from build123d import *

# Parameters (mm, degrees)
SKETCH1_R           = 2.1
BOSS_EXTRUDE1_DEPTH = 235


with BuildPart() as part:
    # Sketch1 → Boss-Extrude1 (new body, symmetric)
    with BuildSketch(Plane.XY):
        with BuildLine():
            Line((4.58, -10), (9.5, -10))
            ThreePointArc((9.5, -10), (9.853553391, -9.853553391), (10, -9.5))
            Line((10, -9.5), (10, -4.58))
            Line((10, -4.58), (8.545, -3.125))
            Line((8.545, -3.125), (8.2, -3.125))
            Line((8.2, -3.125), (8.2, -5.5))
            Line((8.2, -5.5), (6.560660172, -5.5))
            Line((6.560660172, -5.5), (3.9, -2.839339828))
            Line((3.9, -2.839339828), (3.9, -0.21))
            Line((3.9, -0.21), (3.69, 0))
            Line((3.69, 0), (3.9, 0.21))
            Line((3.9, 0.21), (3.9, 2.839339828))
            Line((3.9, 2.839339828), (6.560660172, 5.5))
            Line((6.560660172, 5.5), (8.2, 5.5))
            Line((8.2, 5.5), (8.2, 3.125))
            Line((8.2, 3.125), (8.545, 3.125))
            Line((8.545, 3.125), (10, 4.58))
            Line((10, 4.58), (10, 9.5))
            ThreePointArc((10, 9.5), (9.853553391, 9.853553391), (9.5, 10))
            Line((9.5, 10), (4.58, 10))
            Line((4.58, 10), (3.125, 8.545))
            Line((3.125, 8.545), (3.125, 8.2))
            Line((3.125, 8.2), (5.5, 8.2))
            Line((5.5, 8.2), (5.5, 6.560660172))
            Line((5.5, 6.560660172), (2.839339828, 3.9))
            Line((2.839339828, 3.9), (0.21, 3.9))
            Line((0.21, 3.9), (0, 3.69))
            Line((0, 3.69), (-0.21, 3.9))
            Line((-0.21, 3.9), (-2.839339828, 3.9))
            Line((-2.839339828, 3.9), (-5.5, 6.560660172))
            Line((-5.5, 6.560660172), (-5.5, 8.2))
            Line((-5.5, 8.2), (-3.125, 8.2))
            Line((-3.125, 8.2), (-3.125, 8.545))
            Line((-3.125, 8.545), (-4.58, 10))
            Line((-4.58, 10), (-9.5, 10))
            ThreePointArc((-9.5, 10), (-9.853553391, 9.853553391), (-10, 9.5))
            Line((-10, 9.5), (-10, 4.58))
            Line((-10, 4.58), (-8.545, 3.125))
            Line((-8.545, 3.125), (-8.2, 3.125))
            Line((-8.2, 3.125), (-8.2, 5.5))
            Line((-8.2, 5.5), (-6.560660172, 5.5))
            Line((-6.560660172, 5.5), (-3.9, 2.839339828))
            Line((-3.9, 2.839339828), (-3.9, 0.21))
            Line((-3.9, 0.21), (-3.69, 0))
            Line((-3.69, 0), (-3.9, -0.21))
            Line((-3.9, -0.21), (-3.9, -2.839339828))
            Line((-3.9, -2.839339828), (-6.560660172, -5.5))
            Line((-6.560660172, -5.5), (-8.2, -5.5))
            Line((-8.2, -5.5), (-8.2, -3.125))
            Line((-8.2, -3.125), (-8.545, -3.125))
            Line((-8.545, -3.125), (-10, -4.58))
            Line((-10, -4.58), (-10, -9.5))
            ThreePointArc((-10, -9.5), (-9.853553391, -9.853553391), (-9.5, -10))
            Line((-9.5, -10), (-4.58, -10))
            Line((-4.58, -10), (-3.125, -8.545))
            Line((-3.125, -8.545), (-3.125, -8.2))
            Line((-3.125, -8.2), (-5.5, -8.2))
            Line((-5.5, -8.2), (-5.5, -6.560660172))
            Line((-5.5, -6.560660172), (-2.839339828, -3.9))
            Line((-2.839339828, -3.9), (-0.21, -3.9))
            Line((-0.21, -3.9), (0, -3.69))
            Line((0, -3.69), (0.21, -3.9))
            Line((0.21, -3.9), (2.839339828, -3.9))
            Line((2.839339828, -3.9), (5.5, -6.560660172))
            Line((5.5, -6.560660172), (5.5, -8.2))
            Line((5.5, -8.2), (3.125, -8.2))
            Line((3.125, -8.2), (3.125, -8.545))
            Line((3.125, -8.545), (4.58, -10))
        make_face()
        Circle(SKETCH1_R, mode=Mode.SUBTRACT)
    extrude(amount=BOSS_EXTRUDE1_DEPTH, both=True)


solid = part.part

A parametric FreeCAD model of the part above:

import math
import FreeCAD as App
import Part
import Sketcher

doc = App.newDocument("Part")
body = doc.addObject("PartDesign::Body", "Body")

sketch1 = body.newObject("Sketcher::SketchObject", "Sketch")
sketch1.AttachmentSupport = (doc.getObject("XY_Plane"), [""])
sketch1.MapMode = "FlatFace"
sketch1.addGeometry(Part.LineSegment(App.Vector(4.58, -10, 0), App.Vector(9.5, -10, 0)), False)
sketch1.addGeometry(Part.ArcOfCircle(Part.Circle(App.Vector(9.5, -9.5, 0), App.Vector(0, 0, 1), 0.5), math.radians(-90), math.radians(0)), False)
sketch1.addGeometry(Part.LineSegment(App.Vector(10, -9.5, 0), App.Vector(10, -4.58, 0)), False)
sketch1.addGeometry(Part.LineSegment(App.Vector(10, -4.58, 0), App.Vector(8.54, -3.12, 0)), False)
sketch1.addGeometry(Part.LineSegment(App.Vector(8.54, -3.12, 0), App.Vector(8.2, -3.12, 0)), False)
sketch1.addGeometry(Part.LineSegment(App.Vector(8.2, -3.12, 0), App.Vector(8.2, -5.5, 0)), False)
sketch1.addGeometry(Part.LineSegment(App.Vector(8.2, -5.5, 0), App.Vector(6.56, -5.5, 0)), False)
sketch1.addGeometry(Part.LineSegment(App.Vector(6.56, -5.5, 0), App.Vector(3.9, -2.84, 0)), False)
sketch1.addGeometry(Part.LineSegment(App.Vector(3.9, -2.84, 0), App.Vector(3.9, -0.21, 0)), False)
sketch1.addGeometry(Part.LineSegment(App.Vector(3.9, -0.21, 0), App.Vector(3.69, 0, 0)), False)
sketch1.addGeometry(Part.LineSegment(App.Vector(3.69, 0, 0), App.Vector(3.9, 0.21, 0)), False)
sketch1.addGeometry(Part.LineSegment(App.Vector(3.9, 0.21, 0), App.Vector(3.9, 2.84, 0)), False)
sketch1.addGeometry(Part.LineSegment(App.Vector(3.9, 2.84, 0), App.Vector(6.56, 5.5, 0)), False)
sketch1.addGeometry(Part.LineSegment(App.Vector(6.56, 5.5, 0), App.Vector(8.2, 5.5, 0)), False)
sketch1.addGeometry(Part.LineSegment(App.Vector(8.2, 5.5, 0), App.Vector(8.2, 3.12, 0)), False)
sketch1.addGeometry(Part.LineSegment(App.Vector(8.2, 3.12, 0), App.Vector(8.54, 3.12, 0)), False)
sketch1.addGeometry(Part.LineSegment(App.Vector(8.54, 3.12, 0), App.Vector(10, 4.58, 0)), False)
sketch1.addGeometry(Part.LineSegment(App.Vector(10, 4.58, 0), App.Vector(10, 9.5, 0)), False)
sketch1.addGeometry(Part.ArcOfCircle(Part.Circle(App.Vector(9.5, 9.5, 0), App.Vector(0, 0, 1), 0.5), math.radians(0), math.radians(90)), False)
sketch1.addGeometry(Part.LineSegment(App.Vector(9.5, 10, 0), App.Vector(4.58, 10, 0)), False)
sketch1.addGeometry(Part.LineSegment(App.Vector(4.58, 10, 0), App.Vector(3.12, 8.54, 0)), False)
sketch1.addGeometry(Part.LineSegment(App.Vector(3.12, 8.54, 0), App.Vector(3.12, 8.2, 0)), False)
sketch1.addGeometry(Part.LineSegment(App.Vector(3.12, 8.2, 0), App.Vector(5.5, 8.2, 0)), False)
sketch1.addGeometry(Part.LineSegment(App.Vector(5.5, 8.2, 0), App.Vector(5.5, 6.56, 0)), False)
sketch1.addGeometry(Part.LineSegment(App.Vector(5.5, 6.56, 0), App.Vector(2.84, 3.9, 0)), False)
sketch1.addGeometry(Part.LineSegment(App.Vector(2.84, 3.9, 0), App.Vector(0.21, 3.9, 0)), False)
sketch1.addGeometry(Part.LineSegment(App.Vector(0.21, 3.9, 0), App.Vector(0, 3.69, 0)), False)
sketch1.addGeometry(Part.LineSegment(App.Vector(0, 3.69, 0), App.Vector(-0.21, 3.9, 0)), False)
sketch1.addGeometry(Part.LineSegment(App.Vector(-0.21, 3.9, 0), App.Vector(-2.84, 3.9, 0)), False)
sketch1.addGeometry(Part.LineSegment(App.Vector(-2.84, 3.9, 0), App.Vector(-5.5, 6.56, 0)), False)
sketch1.addGeometry(Part.LineSegment(App.Vector(-5.5, 6.56, 0), App.Vector(-5.5, 8.2, 0)), False)
sketch1.addGeometry(Part.LineSegment(App.Vector(-5.5, 8.2, 0), App.Vector(-3.12, 8.2, 0)), False)
sketch1.addGeometry(Part.LineSegment(App.Vector(-3.12, 8.2, 0), App.Vector(-3.12, 8.54, 0)), False)
sketch1.addGeometry(Part.LineSegment(App.Vector(-3.12, 8.54, 0), App.Vector(-4.58, 10, 0)), False)
sketch1.addGeometry(Part.LineSegment(App.Vector(-4.58, 10, 0), App.Vector(-9.5, 10, 0)), False)
sketch1.addGeometry(Part.ArcOfCircle(Part.Circle(App.Vector(-9.5, 9.5, 0), App.Vector(0, 0, 1), 0.5), math.radians(90), math.radians(180)), False)
sketch1.addGeometry(Part.LineSegment(App.Vector(-10, 9.5, 0), App.Vector(-10, 4.58, 0)), False)
sketch1.addGeometry(Part.LineSegment(App.Vector(-10, 4.58, 0), App.Vector(-8.54, 3.12, 0)), False)
sketch1.addGeometry(Part.LineSegment(App.Vector(-8.54, 3.12, 0), App.Vector(-8.2, 3.12, 0)), False)
sketch1.addGeometry(Part.LineSegment(App.Vector(-8.2, 3.12, 0), App.Vector(-8.2, 5.5, 0)), False)
sketch1.addGeometry(Part.LineSegment(App.Vector(-8.2, 5.5, 0), App.Vector(-6.56, 5.5, 0)), False)
sketch1.addGeometry(Part.LineSegment(App.Vector(-6.56, 5.5, 0), App.Vector(-3.9, 2.84, 0)), False)
sketch1.addGeometry(Part.LineSegment(App.Vector(-3.9, 2.84, 0), App.Vector(-3.9, 0.21, 0)), False)
sketch1.addGeometry(Part.LineSegment(App.Vector(-3.9, 0.21, 0), App.Vector(-3.69, 0, 0)), False)
sketch1.addGeometry(Part.LineSegment(App.Vector(-3.69, 0, 0), App.Vector(-3.9, -0.21, 0)), False)
sketch1.addGeometry(Part.LineSegment(App.Vector(-3.9, -0.21, 0), App.Vector(-3.9, -2.84, 0)), False)
sketch1.addGeometry(Part.LineSegment(App.Vector(-3.9, -2.84, 0), App.Vector(-6.56, -5.5, 0)), False)
sketch1.addGeometry(Part.LineSegment(App.Vector(-6.56, -5.5, 0), App.Vector(-8.2, -5.5, 0)), False)
sketch1.addGeometry(Part.LineSegment(App.Vector(-8.2, -5.5, 0), App.Vector(-8.2, -3.12, 0)), False)
sketch1.addGeometry(Part.LineSegment(App.Vector(-8.2, -3.12, 0), App.Vector(-8.54, -3.12, 0)), False)
sketch1.addGeometry(Part.LineSegment(App.Vector(-8.54, -3.12, 0), App.Vector(-10, -4.58, 0)), False)
sketch1.addGeometry(Part.LineSegment(App.Vector(-10, -4.58, 0), App.Vector(-10, -9.5, 0)), False)
sketch1.addGeometry(Part.ArcOfCircle(Part.Circle(App.Vector(-9.5, -9.5, 0), App.Vector(0, 0, 1), 0.5), math.radians(180), math.radians(270)), False)
sketch1.addGeometry(Part.LineSegment(App.Vector(-9.5, -10, 0), App.Vector(-4.58, -10, 0)), False)
sketch1.addGeometry(Part.LineSegment(App.Vector(-4.58, -10, 0), App.Vector(-3.12, -8.54, 0)), False)
sketch1.addGeometry(Part.LineSegment(App.Vector(-3.12, -8.54, 0), App.Vector(-3.12, -8.2, 0)), False)
sketch1.addGeometry(Part.LineSegment(App.Vector(-3.12, -8.2, 0), App.Vector(-5.5, -8.2, 0)), False)
sketch1.addGeometry(Part.LineSegment(App.Vector(-5.5, -8.2, 0), App.Vector(-5.5, -6.56, 0)), False)
sketch1.addGeometry(Part.LineSegment(App.Vector(-5.5, -6.56, 0), App.Vector(-2.84, -3.9, 0)), False)
sketch1.addGeometry(Part.LineSegment(App.Vector(-2.84, -3.9, 0), App.Vector(-0.21, -3.9, 0)), False)
sketch1.addGeometry(Part.LineSegment(App.Vector(-0.21, -3.9, 0), App.Vector(0, -3.69, 0)), False)
sketch1.addGeometry(Part.LineSegment(App.Vector(0, -3.69, 0), App.Vector(0.21, -3.9, 0)), False)
sketch1.addGeometry(Part.LineSegment(App.Vector(0.21, -3.9, 0), App.Vector(2.84, -3.9, 0)), False)
sketch1.addGeometry(Part.LineSegment(App.Vector(2.84, -3.9, 0), App.Vector(5.5, -6.56, 0)), False)
sketch1.addGeometry(Part.LineSegment(App.Vector(5.5, -6.56, 0), App.Vector(5.5, -8.2, 0)), False)
sketch1.addGeometry(Part.LineSegment(App.Vector(5.5, -8.2, 0), App.Vector(3.12, -8.2, 0)), False)
sketch1.addGeometry(Part.LineSegment(App.Vector(3.12, -8.2, 0), App.Vector(3.12, -8.54, 0)), False)
sketch1.addGeometry(Part.LineSegment(App.Vector(3.12, -8.54, 0), App.Vector(4.58, -10, 0)), False)
sketch1.addGeometry(Part.Circle(App.Vector(0, 0, 0), App.Vector(0, 0, 1), 2.1), False)
sketch1.addConstraint(Sketcher.Constraint("Tangent", 0, 2, 1, 1))
sketch1.addConstraint(Sketcher.Constraint("Tangent", 1, 2, 2, 1))
sketch1.addConstraint(Sketcher.Constraint("Coincident", 2, 2, 3, 1))
sketch1.addConstraint(Sketcher.Constraint("Coincident", 3, 2, 4, 1))
sketch1.addConstraint(Sketcher.Constraint("Coincident", 4, 2, 5, 1))
sketch1.addConstraint(Sketcher.Constraint("Coincident", 5, 2, 6, 1))
sketch1.addConstraint(Sketcher.Constraint("Coincident", 6, 2, 7, 1))
sketch1.addConstraint(Sketcher.Constraint("Coincident", 7, 2, 8, 1))
sketch1.addConstraint(Sketcher.Constraint("Coincident", 8, 2, 9, 1))
sketch1.addConstraint(Sketcher.Constraint("Coincident", 9, 2, 10, 1))
sketch1.addConstraint(Sketcher.Constraint("Coincident", 10, 2, 11, 1))
sketch1.addConstraint(Sketcher.Constraint("Coincident", 11, 2, 12, 1))
sketch1.addConstraint(Sketcher.Constraint("Coincident", 12, 2, 13, 1))
sketch1.addConstraint(Sketcher.Constraint("Coincident", 13, 2, 14, 1))
sketch1.addConstraint(Sketcher.Constraint("Coincident", 14, 2, 15, 1))
sketch1.addConstraint(Sketcher.Constraint("Coincident", 15, 2, 16, 1))
sketch1.addConstraint(Sketcher.Constraint("Coincident", 16, 2, 17, 1))
sketch1.addConstraint(Sketcher.Constraint("Tangent", 17, 2, 18, 1))
sketch1.addConstraint(Sketcher.Constraint("Tangent", 18, 2, 19, 1))
sketch1.addConstraint(Sketcher.Constraint("Coincident", 19, 2, 20, 1))
sketch1.addConstraint(Sketcher.Constraint("Coincident", 20, 2, 21, 1))
sketch1.addConstraint(Sketcher.Constraint("Coincident", 21, 2, 22, 1))
sketch1.addConstraint(Sketcher.Constraint("Coincident", 22, 2, 23, 1))
sketch1.addConstraint(Sketcher.Constraint("Coincident", 23, 2, 24, 1))
sketch1.addConstraint(Sketcher.Constraint("Coincident", 24, 2, 25, 1))
sketch1.addConstraint(Sketcher.Constraint("Coincident", 25, 2, 26, 1))
sketch1.addConstraint(Sketcher.Constraint("Coincident", 26, 2, 27, 1))
sketch1.addConstraint(Sketcher.Constraint("Coincident", 27, 2, 28, 1))
sketch1.addConstraint(Sketcher.Constraint("Coincident", 28, 2, 29, 1))
sketch1.addConstraint(Sketcher.Constraint("Coincident", 29, 2, 30, 1))
sketch1.addConstraint(Sketcher.Constraint("Coincident", 30, 2, 31, 1))
sketch1.addConstraint(Sketcher.Constraint("Coincident", 31, 2, 32, 1))
sketch1.addConstraint(Sketcher.Constraint("Coincident", 32, 2, 33, 1))
sketch1.addConstraint(Sketcher.Constraint("Coincident", 33, 2, 34, 1))
sketch1.addConstraint(Sketcher.Constraint("Tangent", 34, 2, 35, 1))
sketch1.addConstraint(Sketcher.Constraint("Tangent", 35, 2, 36, 1))
sketch1.addConstraint(Sketcher.Constraint("Coincident", 36, 2, 37, 1))
sketch1.addConstraint(Sketcher.Constraint("Coincident", 37, 2, 38, 1))
sketch1.addConstraint(Sketcher.Constraint("Coincident", 38, 2, 39, 1))
sketch1.addConstraint(Sketcher.Constraint("Coincident", 39, 2, 40, 1))
sketch1.addConstraint(Sketcher.Constraint("Coincident", 40, 2, 41, 1))
sketch1.addConstraint(Sketcher.Constraint("Coincident", 41, 2, 42, 1))
sketch1.addConstraint(Sketcher.Constraint("Coincident", 42, 2, 43, 1))
sketch1.addConstraint(Sketcher.Constraint("Coincident", 43, 2, 44, 1))
sketch1.addConstraint(Sketcher.Constraint("Coincident", 44, 2, 45, 1))
sketch1.addConstraint(Sketcher.Constraint("Coincident", 45, 2, 46, 1))
sketch1.addConstraint(Sketcher.Constraint("Coincident", 46, 2, 47, 1))
sketch1.addConstraint(Sketcher.Constraint("Coincident", 47, 2, 48, 1))
sketch1.addConstraint(Sketcher.Constraint("Coincident", 48, 2, 49, 1))
sketch1.addConstraint(Sketcher.Constraint("Coincident", 49, 2, 50, 1))
sketch1.addConstraint(Sketcher.Constraint("Coincident", 50, 2, 51, 1))
sketch1.addConstraint(Sketcher.Constraint("Tangent", 51, 2, 52, 1))
sketch1.addConstraint(Sketcher.Constraint("Tangent", 52, 2, 53, 1))
sketch1.addConstraint(Sketcher.Constraint("Coincident", 53, 2, 54, 1))
sketch1.addConstraint(Sketcher.Constraint("Coincident", 54, 2, 55, 1))
sketch1.addConstraint(Sketcher.Constraint("Coincident", 55, 2, 56, 1))
sketch1.addConstraint(Sketcher.Constraint("Coincident", 56, 2, 57, 1))
sketch1.addConstraint(Sketcher.Constraint("Coincident", 57, 2, 58, 1))
sketch1.addConstraint(Sketcher.Constraint("Coincident", 58, 2, 59, 1))
sketch1.addConstraint(Sketcher.Constraint("Coincident", 59, 2, 60, 1))
sketch1.addConstraint(Sketcher.Constraint("Coincident", 60, 2, 61, 1))
sketch1.addConstraint(Sketcher.Constraint("Coincident", 61, 2, 62, 1))
sketch1.addConstraint(Sketcher.Constraint("Coincident", 62, 2, 63, 1))
sketch1.addConstraint(Sketcher.Constraint("Coincident", 63, 2, 64, 1))
sketch1.addConstraint(Sketcher.Constraint("Coincident", 64, 2, 65, 1))
sketch1.addConstraint(Sketcher.Constraint("Coincident", 65, 2, 66, 1))
sketch1.addConstraint(Sketcher.Constraint("Coincident", 66, 2, 67, 1))
sketch1.addConstraint(Sketcher.Constraint("Coincident", 67, 2, 0, 1))
sketch1.addConstraint(Sketcher.Constraint("Horizontal", 0))
sketch1.addConstraint(Sketcher.Constraint("Vertical", 2))
sketch1.addConstraint(Sketcher.Constraint("Horizontal", 4))
sketch1.addConstraint(Sketcher.Constraint("Vertical", 5))
sketch1.addConstraint(Sketcher.Constraint("Horizontal", 6))
sketch1.addConstraint(Sketcher.Constraint("Vertical", 8))
sketch1.addConstraint(Sketcher.Constraint("Vertical", 11))
sketch1.addConstraint(Sketcher.Constraint("Horizontal", 13))
sketch1.addConstraint(Sketcher.Constraint("Vertical", 14))
sketch1.addConstraint(Sketcher.Constraint("Horizontal", 15))
sketch1.addConstraint(Sketcher.Constraint("Vertical", 17))
sketch1.addConstraint(Sketcher.Constraint("Horizontal", 19))
sketch1.addConstraint(Sketcher.Constraint("Vertical", 21))
sketch1.addConstraint(Sketcher.Constraint("Horizontal", 22))
sketch1.addConstraint(Sketcher.Constraint("Vertical", 23))
sketch1.addConstraint(Sketcher.Constraint("Horizontal", 25))
sketch1.addConstraint(Sketcher.Constraint("Horizontal", 28))
sketch1.addConstraint(Sketcher.Constraint("Vertical", 30))
sketch1.addConstraint(Sketcher.Constraint("Horizontal", 31))
sketch1.addConstraint(Sketcher.Constraint("Vertical", 32))
sketch1.addConstraint(Sketcher.Constraint("Horizontal", 34))
sketch1.addConstraint(Sketcher.Constraint("Vertical", 36))
sketch1.addConstraint(Sketcher.Constraint("Horizontal", 38))
sketch1.addConstraint(Sketcher.Constraint("Vertical", 39))
sketch1.addConstraint(Sketcher.Constraint("Horizontal", 40))
sketch1.addConstraint(Sketcher.Constraint("Vertical", 42))
sketch1.addConstraint(Sketcher.Constraint("Vertical", 45))
sketch1.addConstraint(Sketcher.Constraint("Horizontal", 47))
sketch1.addConstraint(Sketcher.Constraint("Vertical", 48))
sketch1.addConstraint(Sketcher.Constraint("Horizontal", 49))
sketch1.addConstraint(Sketcher.Constraint("Vertical", 51))
sketch1.addConstraint(Sketcher.Constraint("Horizontal", 53))
sketch1.addConstraint(Sketcher.Constraint("Vertical", 55))
sketch1.addConstraint(Sketcher.Constraint("Horizontal", 56))
sketch1.addConstraint(Sketcher.Constraint("Vertical", 57))
sketch1.addConstraint(Sketcher.Constraint("Horizontal", 59))
sketch1.addConstraint(Sketcher.Constraint("Horizontal", 62))
sketch1.addConstraint(Sketcher.Constraint("Vertical", 64))
sketch1.addConstraint(Sketcher.Constraint("Horizontal", 65))
sketch1.addConstraint(Sketcher.Constraint("Vertical", 66))
sketch1.addConstraint(Sketcher.Constraint("Coincident", 68, 3, -1, 1))
sketch1.addConstraint(Sketcher.Constraint("Equal", 1, 18))
sketch1.addConstraint(Sketcher.Constraint("Equal", 18, 35))
sketch1.addConstraint(Sketcher.Constraint("Equal", 35, 52))
sketch1.addConstraint(Sketcher.Constraint("Symmetric", 1, 3, 35, 3, -1, 1))
sketch1.addConstraint(Sketcher.Constraint("Symmetric", 18, 3, 52, 3, -1, 1))
sketch1.addConstraint(Sketcher.Constraint("Symmetric", 3, 2, 37, 2, -1, 1))
sketch1.addConstraint(Sketcher.Constraint("Symmetric", 5, 2, 39, 2, -1, 1))
sketch1.addConstraint(Sketcher.Constraint("Symmetric", 7, 2, 41, 2, -1, 1))
sketch1.addConstraint(Sketcher.Constraint("Symmetric", 9, 2, 43, 2, -1, 1))
sketch1.addConstraint(Sketcher.Constraint("Symmetric", 10, 2, 44, 2, -1, 1))
sketch1.addConstraint(Sketcher.Constraint("Symmetric", 12, 2, 46, 2, -1, 1))
sketch1.addConstraint(Sketcher.Constraint("Symmetric", 14, 2, 48, 2, -1, 1))
sketch1.addConstraint(Sketcher.Constraint("Symmetric", 20, 2, 54, 2, -1, 1))
sketch1.addConstraint(Sketcher.Constraint("Symmetric", 22, 2, 56, 2, -1, 1))
sketch1.addConstraint(Sketcher.Constraint("Symmetric", 24, 2, 58, 2, -1, 1))
sketch1.addConstraint(Sketcher.Constraint("Symmetric", 26, 2, 60, 2, -1, 1))
sketch1.addConstraint(Sketcher.Constraint("Symmetric", 27, 2, 61, 2, -1, 1))
sketch1.addConstraint(Sketcher.Constraint("Symmetric", 29, 2, 63, 2, -1, 1))
sketch1.addConstraint(Sketcher.Constraint("Symmetric", 31, 2, 65, 2, -1, 1))
sketch1.addConstraint(Sketcher.Constraint("Symmetric", 18, 3, 35, 3, -2))
sketch1.addConstraint(Sketcher.Constraint("Symmetric", 25, 2, 27, 2, -2))
sketch1.addConstraint(Sketcher.Constraint("Symmetric", 23, 2, 29, 2, -2))
sketch1.addConstraint(Sketcher.Constraint("Symmetric", 21, 2, 31, 2, -2))
sketch1.addConstraint(Sketcher.Constraint("Symmetric", 15, 2, 37, 2, -2))
sketch1.addConstraint(Sketcher.Constraint("Symmetric", 13, 2, 39, 2, -2))
sketch1.addConstraint(Sketcher.Constraint("Symmetric", 11, 2, 41, 2, -2))
sketch1.addConstraint(Sketcher.Constraint("PointOnObject", 9, 2, -1))
sketch1.addConstraint(Sketcher.Constraint("PointOnObject", 26, 2, -2))
sketch1.addConstraint(Sketcher.Constraint("Parallel", 3, 7))
sketch1.addConstraint(Sketcher.Constraint("Parallel", 7, 9))
sketch1.addConstraint(Sketcher.Constraint("Perpendicular", 9, 10))
sketch1.addConstraint(Sketcher.Constraint("Parallel", 10, 12))
sketch1.addConstraint(Sketcher.Constraint("Parallel", 12, 16))
sketch1.addConstraint(Sketcher.Constraint("Parallel", 16, 20))
sketch1.addConstraint(Sketcher.Constraint("Parallel", 20, 24))
sketch1.addConstraint(Sketcher.Constraint("Parallel", 24, 26))
sketch1.addConstraint(Sketcher.Constraint("Perpendicular", 26, 27))
sketch1.addConstraint(Sketcher.Constraint("Parallel", 27, 29))
sketch1.addConstraint(Sketcher.Constraint("Parallel", 29, 33))
sketch1.addConstraint(Sketcher.Constraint("Parallel", 33, 37))
sketch1.addConstraint(Sketcher.Constraint("Parallel", 37, 41))
sketch1.addConstraint(Sketcher.Constraint("Parallel", 41, 43))
sketch1.addConstraint(Sketcher.Constraint("Parallel", 44, 46))
sketch1.addConstraint(Sketcher.Constraint("Parallel", 46, 50))
sketch1.addConstraint(Sketcher.Constraint("Parallel", 50, 54))
sketch1.addConstraint(Sketcher.Constraint("Parallel", 54, 58))
sketch1.addConstraint(Sketcher.Constraint("Parallel", 58, 60))
sketch1.addConstraint(Sketcher.Constraint("Parallel", 61, 63))
sketch1.addConstraint(Sketcher.Constraint("Parallel", 63, 67))
sketch1.addConstraint(Sketcher.Constraint("Horizontal", 20, 2, 32, 2))
sketch1.addConstraint(Sketcher.Constraint("Horizontal", 2, 2, 50, 2))
sketch1.addConstraint(Sketcher.Constraint("Horizontal", 54, 2, 66, 2))
sketch1.addConstraint(Sketcher.Constraint("Equal", 53, 2))
sketch1.addConstraint(Sketcher.Constraint("Equal", 65, 5))
sketch1.addConstraint(Sketcher.Constraint("Equal", 62, 8))
sketch1.addConstraint(Sketcher.Constraint("Equal", 49, 21))
sketch1.addConstraint(Sketcher.Constraint("Equal", 47, 23))
sketch1.addConstraint(Sketcher.Constraint("Equal", 16, 20))
sketch1.addConstraint(Sketcher.Constraint("Equal", 12, 24))
sketch1.addConstraint(Sketcher.Constraint("Equal", 10, 26))
sketch1.addConstraint(Sketcher.Constraint("Diameter", 68, 4.2))
sketch1.addConstraint(Sketcher.Constraint("Radius", 1, 0.5))
sketch1.addConstraint(Sketcher.Constraint("DistanceY", 0, 2, -1, 1, 10.0))
sketch1.addConstraint(Sketcher.Constraint("DistanceX", 0, 1, 0, 2, 4.92))
sketch1.addConstraint(Sketcher.Constraint("DistanceX", -1, 1, 4, 2, 8.2))
sketch1.addConstraint(Sketcher.Constraint("DistanceY", 5, 2, -1, 1, 5.5))
sketch1.addConstraint(Sketcher.Constraint("DistanceX", -1, 1, 7, 2, 3.9))
sketch1.addConstraint(Sketcher.Constraint("DistanceX", 4, 2, 4, 1, 0.345))
sketch1.addConstraint(Sketcher.Constraint("DistanceY", 8, 2, -1, 1, 0.21))
sketch1.addConstraint(Sketcher.Constraint("DistanceX", 6, 2, 6, 1, 1.63934))
pad1 = body.newObject("PartDesign::Pad", "Pad")
pad1.Profile = sketch1
pad1.Length = 470
pad1.Midplane = True

doc.recompute()
